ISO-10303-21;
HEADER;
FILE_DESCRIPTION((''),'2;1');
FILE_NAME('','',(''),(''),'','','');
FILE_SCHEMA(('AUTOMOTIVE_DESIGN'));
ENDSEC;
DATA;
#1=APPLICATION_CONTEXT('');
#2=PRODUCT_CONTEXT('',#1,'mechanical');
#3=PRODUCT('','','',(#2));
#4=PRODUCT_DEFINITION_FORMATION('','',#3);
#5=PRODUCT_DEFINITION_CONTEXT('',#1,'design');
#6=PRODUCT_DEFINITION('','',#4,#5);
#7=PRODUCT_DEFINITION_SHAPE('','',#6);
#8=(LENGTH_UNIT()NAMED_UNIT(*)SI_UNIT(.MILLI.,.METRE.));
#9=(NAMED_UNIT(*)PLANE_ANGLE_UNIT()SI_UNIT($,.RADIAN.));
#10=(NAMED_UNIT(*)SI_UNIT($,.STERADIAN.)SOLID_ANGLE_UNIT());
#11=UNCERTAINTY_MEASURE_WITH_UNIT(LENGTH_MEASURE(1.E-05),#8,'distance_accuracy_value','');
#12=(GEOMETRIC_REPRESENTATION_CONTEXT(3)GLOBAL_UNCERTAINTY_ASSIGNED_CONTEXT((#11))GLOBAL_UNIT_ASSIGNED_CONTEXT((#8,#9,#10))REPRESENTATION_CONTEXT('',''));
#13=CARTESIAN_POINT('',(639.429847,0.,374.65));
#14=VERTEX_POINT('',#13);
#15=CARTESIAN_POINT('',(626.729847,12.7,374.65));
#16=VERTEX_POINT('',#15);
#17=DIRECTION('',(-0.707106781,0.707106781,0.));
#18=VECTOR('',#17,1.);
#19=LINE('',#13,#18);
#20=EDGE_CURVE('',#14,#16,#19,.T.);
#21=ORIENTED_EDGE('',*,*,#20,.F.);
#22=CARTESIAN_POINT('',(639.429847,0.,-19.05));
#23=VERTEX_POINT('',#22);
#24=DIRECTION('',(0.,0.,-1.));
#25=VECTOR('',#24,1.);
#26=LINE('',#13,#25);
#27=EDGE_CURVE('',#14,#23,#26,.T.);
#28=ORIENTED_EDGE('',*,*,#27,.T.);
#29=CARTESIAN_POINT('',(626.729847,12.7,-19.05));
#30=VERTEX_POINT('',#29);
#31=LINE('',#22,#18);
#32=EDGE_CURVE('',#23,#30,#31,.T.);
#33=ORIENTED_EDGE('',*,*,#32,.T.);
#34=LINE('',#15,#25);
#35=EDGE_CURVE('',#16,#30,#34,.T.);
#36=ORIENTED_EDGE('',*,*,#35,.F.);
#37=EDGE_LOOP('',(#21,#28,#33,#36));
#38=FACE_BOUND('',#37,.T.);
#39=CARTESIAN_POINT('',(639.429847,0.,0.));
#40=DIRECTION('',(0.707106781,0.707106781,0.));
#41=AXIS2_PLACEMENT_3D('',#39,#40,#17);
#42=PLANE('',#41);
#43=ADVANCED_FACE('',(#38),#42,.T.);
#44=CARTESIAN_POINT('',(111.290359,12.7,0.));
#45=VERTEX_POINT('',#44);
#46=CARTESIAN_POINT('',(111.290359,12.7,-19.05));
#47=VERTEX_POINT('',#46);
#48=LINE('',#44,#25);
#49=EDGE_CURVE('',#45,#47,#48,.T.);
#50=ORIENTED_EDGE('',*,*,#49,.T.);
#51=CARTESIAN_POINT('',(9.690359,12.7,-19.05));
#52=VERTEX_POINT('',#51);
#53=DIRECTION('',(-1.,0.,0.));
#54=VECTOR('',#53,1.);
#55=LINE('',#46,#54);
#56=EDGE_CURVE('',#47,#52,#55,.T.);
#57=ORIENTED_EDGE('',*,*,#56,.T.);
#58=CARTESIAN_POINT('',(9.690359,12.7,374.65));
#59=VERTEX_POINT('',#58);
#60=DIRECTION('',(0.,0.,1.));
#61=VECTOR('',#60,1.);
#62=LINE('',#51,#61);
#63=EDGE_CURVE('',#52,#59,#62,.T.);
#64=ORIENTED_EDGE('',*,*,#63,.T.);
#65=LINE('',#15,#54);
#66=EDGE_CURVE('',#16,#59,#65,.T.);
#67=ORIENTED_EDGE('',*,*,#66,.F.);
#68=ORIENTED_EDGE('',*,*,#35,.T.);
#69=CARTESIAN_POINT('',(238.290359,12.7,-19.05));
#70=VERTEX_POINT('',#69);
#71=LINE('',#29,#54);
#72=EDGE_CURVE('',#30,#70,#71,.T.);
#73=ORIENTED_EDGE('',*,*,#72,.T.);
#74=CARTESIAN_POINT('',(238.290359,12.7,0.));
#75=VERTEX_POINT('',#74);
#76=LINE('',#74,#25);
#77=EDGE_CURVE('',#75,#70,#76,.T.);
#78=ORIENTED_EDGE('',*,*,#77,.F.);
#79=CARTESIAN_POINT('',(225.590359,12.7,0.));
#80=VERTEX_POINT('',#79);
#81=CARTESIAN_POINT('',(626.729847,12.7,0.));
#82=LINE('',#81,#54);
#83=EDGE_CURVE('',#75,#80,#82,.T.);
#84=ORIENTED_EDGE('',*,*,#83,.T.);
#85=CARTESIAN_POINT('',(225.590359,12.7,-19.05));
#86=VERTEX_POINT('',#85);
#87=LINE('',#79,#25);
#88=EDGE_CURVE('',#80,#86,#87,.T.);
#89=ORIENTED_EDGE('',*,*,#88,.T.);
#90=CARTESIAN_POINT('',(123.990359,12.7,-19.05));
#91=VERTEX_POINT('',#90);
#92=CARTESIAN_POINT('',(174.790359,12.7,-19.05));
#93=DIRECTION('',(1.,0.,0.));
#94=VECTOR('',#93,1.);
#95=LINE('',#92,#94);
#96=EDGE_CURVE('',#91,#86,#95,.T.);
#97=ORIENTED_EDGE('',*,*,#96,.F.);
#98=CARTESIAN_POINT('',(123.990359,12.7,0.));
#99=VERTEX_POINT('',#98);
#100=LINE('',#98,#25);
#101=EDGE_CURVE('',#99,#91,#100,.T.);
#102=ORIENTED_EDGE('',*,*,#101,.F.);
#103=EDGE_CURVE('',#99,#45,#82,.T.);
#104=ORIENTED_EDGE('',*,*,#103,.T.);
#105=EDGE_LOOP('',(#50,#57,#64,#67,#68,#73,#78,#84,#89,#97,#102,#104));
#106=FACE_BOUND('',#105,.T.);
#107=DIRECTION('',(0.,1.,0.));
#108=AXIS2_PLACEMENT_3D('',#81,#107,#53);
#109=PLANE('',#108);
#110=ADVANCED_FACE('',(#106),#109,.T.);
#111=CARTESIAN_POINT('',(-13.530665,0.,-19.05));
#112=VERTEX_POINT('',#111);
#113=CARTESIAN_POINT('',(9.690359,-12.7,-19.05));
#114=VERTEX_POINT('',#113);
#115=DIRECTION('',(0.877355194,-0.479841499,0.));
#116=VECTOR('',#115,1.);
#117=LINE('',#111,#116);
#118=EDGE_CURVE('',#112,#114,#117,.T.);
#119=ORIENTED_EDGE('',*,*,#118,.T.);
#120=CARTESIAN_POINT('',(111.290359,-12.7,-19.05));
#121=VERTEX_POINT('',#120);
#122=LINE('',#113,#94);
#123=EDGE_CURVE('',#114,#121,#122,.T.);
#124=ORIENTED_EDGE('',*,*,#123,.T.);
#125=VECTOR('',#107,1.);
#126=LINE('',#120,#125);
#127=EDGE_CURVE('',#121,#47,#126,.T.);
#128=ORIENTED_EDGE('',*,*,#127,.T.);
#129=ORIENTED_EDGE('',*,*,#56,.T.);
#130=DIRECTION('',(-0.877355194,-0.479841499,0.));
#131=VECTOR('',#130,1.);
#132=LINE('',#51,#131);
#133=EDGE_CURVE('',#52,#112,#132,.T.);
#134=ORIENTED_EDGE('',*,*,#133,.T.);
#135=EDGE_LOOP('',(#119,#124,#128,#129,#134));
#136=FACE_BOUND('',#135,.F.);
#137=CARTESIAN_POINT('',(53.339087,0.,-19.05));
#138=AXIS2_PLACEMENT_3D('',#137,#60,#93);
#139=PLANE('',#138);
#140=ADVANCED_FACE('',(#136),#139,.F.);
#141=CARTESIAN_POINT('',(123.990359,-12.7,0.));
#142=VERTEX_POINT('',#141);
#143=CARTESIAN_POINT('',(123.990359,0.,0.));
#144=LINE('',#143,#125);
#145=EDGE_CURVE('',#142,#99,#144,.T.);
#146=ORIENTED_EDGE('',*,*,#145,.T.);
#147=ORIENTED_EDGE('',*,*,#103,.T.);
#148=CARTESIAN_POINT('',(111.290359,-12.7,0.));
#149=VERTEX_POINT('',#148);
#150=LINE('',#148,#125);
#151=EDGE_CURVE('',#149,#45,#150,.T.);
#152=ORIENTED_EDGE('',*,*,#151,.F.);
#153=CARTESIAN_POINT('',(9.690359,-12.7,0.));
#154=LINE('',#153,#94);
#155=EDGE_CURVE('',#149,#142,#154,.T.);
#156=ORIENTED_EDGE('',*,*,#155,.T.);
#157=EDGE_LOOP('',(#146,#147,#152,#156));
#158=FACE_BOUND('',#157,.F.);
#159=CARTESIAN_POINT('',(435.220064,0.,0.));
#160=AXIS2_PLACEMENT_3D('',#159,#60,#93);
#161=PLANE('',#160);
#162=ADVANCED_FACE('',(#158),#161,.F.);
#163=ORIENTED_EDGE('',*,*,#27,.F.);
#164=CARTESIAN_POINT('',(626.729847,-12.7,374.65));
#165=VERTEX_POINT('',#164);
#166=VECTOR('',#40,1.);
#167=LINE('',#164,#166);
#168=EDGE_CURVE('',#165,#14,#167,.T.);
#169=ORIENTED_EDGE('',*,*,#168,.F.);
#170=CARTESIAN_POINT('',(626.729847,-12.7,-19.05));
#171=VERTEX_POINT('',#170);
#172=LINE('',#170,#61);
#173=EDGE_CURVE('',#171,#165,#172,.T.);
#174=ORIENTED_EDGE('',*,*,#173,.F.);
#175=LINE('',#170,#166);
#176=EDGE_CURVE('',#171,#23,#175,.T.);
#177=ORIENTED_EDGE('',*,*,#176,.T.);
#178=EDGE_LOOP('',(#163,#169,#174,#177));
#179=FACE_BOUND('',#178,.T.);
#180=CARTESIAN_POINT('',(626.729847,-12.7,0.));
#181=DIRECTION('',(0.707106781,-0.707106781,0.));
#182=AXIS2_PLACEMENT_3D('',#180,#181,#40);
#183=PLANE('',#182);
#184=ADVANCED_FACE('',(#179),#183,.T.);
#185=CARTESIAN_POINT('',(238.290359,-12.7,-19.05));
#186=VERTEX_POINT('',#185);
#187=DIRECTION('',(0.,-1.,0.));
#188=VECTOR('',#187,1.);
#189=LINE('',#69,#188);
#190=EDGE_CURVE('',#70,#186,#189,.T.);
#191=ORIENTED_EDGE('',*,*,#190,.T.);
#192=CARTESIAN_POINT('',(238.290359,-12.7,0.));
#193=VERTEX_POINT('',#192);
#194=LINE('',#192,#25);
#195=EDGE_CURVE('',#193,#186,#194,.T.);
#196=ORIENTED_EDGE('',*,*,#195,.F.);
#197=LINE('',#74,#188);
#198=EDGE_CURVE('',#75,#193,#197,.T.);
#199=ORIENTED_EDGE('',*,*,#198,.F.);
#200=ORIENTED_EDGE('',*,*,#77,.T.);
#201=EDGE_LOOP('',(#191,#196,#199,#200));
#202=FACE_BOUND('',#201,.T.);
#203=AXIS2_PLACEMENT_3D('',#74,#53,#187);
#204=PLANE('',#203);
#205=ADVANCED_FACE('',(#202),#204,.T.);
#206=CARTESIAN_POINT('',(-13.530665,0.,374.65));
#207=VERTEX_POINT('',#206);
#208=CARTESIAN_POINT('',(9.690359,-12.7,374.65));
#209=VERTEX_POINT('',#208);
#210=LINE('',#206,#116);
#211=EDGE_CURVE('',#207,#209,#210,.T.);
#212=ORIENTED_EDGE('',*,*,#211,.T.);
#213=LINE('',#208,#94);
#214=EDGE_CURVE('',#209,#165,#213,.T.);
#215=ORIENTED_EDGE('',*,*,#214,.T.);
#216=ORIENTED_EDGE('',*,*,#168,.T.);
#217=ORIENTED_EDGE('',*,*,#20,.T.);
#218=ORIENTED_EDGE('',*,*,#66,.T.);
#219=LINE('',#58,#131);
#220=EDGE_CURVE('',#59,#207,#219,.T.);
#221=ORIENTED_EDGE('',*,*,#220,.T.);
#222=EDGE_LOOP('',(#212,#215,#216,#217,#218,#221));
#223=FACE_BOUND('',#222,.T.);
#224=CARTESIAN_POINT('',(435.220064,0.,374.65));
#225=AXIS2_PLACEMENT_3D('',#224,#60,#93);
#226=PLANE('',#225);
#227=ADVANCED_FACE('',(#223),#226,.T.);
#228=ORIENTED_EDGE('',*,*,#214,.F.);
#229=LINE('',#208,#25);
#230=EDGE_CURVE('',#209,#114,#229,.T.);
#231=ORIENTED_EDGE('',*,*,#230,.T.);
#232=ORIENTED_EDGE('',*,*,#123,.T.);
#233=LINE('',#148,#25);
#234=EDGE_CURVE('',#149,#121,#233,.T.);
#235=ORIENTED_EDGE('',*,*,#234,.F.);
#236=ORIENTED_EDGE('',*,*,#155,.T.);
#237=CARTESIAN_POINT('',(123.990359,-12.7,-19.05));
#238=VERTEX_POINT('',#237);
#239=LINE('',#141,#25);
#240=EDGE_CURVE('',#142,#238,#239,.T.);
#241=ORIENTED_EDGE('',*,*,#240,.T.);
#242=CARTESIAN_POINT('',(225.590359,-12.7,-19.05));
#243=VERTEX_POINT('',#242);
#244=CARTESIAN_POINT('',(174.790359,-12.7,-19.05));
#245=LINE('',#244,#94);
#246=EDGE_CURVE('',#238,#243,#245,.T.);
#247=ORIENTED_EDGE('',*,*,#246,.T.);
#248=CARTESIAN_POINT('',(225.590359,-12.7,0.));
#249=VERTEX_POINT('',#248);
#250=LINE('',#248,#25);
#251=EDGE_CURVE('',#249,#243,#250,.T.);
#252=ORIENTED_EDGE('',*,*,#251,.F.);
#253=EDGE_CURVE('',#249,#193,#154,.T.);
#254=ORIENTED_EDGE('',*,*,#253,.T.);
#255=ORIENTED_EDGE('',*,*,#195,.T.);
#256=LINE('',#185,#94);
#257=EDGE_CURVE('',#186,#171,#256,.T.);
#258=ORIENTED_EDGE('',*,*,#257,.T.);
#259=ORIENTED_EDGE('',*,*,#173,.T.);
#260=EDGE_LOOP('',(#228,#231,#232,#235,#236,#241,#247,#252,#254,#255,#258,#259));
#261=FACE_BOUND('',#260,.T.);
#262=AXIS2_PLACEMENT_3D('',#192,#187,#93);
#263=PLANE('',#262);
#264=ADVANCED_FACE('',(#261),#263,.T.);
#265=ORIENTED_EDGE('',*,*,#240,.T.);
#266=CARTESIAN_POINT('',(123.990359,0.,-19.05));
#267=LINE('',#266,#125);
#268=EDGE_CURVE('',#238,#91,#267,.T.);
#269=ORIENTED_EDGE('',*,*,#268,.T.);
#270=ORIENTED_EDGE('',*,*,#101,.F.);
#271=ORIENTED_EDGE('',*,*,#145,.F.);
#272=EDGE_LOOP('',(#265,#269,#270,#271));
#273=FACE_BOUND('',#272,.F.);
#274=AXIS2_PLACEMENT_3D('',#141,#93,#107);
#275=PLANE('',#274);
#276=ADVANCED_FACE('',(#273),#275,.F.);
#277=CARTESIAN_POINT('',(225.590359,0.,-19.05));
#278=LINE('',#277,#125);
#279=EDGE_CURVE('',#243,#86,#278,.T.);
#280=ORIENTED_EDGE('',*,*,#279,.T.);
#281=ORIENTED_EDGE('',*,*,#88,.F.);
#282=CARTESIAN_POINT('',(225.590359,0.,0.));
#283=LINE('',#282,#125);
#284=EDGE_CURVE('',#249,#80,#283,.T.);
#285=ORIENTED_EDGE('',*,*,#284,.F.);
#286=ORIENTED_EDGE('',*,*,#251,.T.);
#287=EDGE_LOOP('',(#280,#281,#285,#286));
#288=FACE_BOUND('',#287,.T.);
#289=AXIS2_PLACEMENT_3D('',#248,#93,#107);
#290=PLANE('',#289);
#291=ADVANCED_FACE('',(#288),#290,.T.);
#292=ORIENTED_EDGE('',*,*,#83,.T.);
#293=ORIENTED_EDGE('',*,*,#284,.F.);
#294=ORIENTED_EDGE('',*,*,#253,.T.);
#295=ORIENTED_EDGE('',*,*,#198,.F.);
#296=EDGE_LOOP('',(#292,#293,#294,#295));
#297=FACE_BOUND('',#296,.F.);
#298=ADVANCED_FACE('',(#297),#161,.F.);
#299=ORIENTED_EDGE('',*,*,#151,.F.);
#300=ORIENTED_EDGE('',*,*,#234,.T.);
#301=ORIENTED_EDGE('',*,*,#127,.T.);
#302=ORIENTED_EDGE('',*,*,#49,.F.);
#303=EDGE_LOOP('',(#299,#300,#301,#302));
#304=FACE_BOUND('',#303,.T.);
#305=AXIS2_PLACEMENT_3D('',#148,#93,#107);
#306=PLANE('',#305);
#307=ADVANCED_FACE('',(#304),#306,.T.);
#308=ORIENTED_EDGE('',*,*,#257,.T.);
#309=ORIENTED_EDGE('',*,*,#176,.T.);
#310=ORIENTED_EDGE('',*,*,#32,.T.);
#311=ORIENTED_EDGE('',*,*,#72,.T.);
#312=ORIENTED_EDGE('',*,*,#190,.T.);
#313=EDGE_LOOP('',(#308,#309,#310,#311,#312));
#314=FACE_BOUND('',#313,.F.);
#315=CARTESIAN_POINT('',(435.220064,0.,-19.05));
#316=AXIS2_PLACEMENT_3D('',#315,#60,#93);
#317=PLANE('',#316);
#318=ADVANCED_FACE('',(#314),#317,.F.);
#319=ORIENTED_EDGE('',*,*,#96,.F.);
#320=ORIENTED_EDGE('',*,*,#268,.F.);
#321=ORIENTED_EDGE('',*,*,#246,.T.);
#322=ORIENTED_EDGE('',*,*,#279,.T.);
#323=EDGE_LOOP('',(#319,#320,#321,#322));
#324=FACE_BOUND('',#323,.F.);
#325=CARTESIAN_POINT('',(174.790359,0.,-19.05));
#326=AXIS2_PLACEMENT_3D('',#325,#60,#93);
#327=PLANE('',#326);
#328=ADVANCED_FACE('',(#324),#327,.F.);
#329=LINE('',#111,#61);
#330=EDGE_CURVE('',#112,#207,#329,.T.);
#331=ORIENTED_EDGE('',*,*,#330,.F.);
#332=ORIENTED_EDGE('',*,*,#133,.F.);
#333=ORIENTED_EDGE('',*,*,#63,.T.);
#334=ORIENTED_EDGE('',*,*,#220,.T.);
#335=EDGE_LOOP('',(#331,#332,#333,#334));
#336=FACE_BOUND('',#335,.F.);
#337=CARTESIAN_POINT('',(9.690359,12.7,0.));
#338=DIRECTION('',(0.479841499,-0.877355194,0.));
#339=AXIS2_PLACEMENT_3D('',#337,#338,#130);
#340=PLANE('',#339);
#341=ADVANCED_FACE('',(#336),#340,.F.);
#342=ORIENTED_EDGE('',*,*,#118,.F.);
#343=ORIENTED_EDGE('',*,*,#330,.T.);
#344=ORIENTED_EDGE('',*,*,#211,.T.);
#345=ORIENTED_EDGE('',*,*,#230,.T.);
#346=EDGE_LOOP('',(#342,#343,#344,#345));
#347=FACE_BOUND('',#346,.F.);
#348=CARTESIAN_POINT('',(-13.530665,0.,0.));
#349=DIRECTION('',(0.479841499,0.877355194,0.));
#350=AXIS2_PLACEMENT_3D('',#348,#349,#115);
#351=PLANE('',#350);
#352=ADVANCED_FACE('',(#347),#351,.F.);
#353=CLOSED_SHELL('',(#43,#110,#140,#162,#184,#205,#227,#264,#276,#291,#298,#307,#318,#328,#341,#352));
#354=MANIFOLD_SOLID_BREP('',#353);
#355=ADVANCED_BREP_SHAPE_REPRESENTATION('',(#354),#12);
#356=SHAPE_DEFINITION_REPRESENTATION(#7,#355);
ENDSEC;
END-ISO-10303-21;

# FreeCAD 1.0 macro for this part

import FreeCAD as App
import Part
import Sketcher
Q = App.Units.Quantity


def add_polygon(sketch, points):
    """Adds a closed chain of lines whose ends are joined by coincident constraints."""
    first, n = sketch.GeometryCount, len(points)
    for a, b in zip(points, points[1:] + points[:1]):
        sketch.addGeometry(Part.LineSegment(App.Vector(*a, 0), App.Vector(*b, 0)), False)
    for i in range(n):
        sketch.addConstraint(Sketcher.Constraint("Coincident", first + i, 2, first + (i + 1) % n, 1))

doc = App.newDocument("Part")
body = doc.addObject("PartDesign::Body", "Body")

# Sketch on XY plane
sketch1 = body.newObject("Sketcher::SketchObject", "Sketch")
sketch1.AttachmentSupport = (doc.getObject("XY_Plane"), [""])
sketch1.MapMode = "FlatFace"
add_polygon(sketch1, [(626.729847, -12.7), (639.429847, 0), (626.729847, 12.7), (9.690359, 12.7), (-13.530665, 0), (9.690359, -12.7)])  # lines 0-5
sketch1.addConstraint(Sketcher.Constraint("Horizontal", 2))
sketch1.addConstraint(Sketcher.Constraint("Horizontal", 5))
sketch1.addConstraint(Sketcher.Constraint("Symmetric", 2, 2, 4, 2, -1))
sketch1.addConstraint(Sketcher.Constraint("PointOnObject", 0, 2, -1))
sketch1.addConstraint(Sketcher.Constraint("PointOnObject", 3, 2, -1))
sketch1.addConstraint(Sketcher.Constraint("Perpendicular", 0, 1))
sketch1.addConstraint(Sketcher.Constraint("Vertical", 1, 2, 5, 2))
sketch1.addConstraint(Sketcher.Constraint("DistanceY", 4, 2, 2, 2, Q("1 in")))
sketch1.addConstraint(Sketcher.Constraint("DistanceX", 2, 2, 2, 1, Q("617.039488 mm")))
sketch1.addConstraint(Sketcher.Constraint("DistanceX", -1, 1, 2, 2, Q("9.690359 mm")))
sketch1.addConstraint(Sketcher.Constraint("DistanceX", 3, 2, 1, 2, Q("640.260512 mm")))
pad1 = body.newObject("PartDesign::Pad", "Pad")
pad1.Profile = sketch1
pad1.Length = Q("14.75 in")

# Sketch on XY plane
sketch2 = body.newObject("Sketcher::SketchObject", "Sketch001")
sketch2.AttachmentSupport = (doc.getObject("XY_Plane"), [""])
sketch2.MapMode = "FlatFace"
add_polygon(sketch2, [(238.290359, 12.7), (238.290359, -12.7), (626.729847, -12.7), (639.429847, 0), (626.729847, 12.7)])  # lines 0-4
add_polygon(sketch2, [(123.990359, 12.7), (123.990359, -12.7), (225.590359, -12.7), (225.590359, 12.7)])  # lines 5-8
add_polygon(sketch2, [(-13.530665, 0), (9.690359, -12.7), (111.290359, -12.7), (111.290359, 12.7), (9.690359, 12.7)])  # lines 9-13
sketch2.addConstraint(Sketcher.Constraint("Vertical", 0))
sketch2.addConstraint(Sketcher.Constraint("Horizontal", 1))
sketch2.addConstraint(Sketcher.Constraint("Horizontal", 4))
sketch2.addConstraint(Sketcher.Constraint("Vertical", 5))
sketch2.addConstraint(Sketcher.Constraint("Horizontal", 6))
sketch2.addConstraint(Sketcher.Constraint("Vertical", 7))
sketch2.addConstraint(Sketcher.Constraint("Horizontal", 8))
sketch2.addConstraint(Sketcher.Constraint("Horizontal", 10))
sketch2.addConstraint(Sketcher.Constraint("Vertical", 11))
sketch2.addConstraint(Sketcher.Constraint("Horizontal", 12))
sketch2.addConstraint(Sketcher.Constraint("Symmetric", 1, 2, 3, 2, -1))
sketch2.addConstraint(Sketcher.Constraint("Symmetric", 9, 2, 12, 2, -1))
sketch2.addConstraint(Sketcher.Constraint("PointOnObject", 2, 2, -1))
sketch2.addConstraint(Sketcher.Constraint("PointOnObject", 13, 2, -1))
sketch2.addConstraint(Sketcher.Constraint("Perpendicular", 2, 3))
sketch2.addConstraint(Sketcher.Constraint("Horizontal", 1, 2, 5, 2))
sketch2.addConstraint(Sketcher.Constraint("Horizontal", 4, 2, 7, 2))
sketch2.addConstraint(Sketcher.Constraint("Horizontal", 6, 2, 9, 2))
sketch2.addConstraint(Sketcher.Constraint("Equal", 8, 10))
sketch2.addConstraint(Sketcher.Constraint("DistanceX", 6, 1, 6, 2, Q("4 in")))
sketch2.addConstraint(Sketcher.Constraint("DistanceY", 0, 2, 0, 1, Q("1 in")))
sketch2.addConstraint(Sketcher.Constraint("DistanceX", 9, 2, 0, 2, Q("9 in")))
sketch2.addConstraint(Sketcher.Constraint("DistanceX", 5, 2, 0, 2, Q("4.5 in")))
sketch2.addConstraint(Sketcher.Constraint("DistanceX", 1, 1, 1, 2, Q("388.439488 mm")))
sketch2.addConstraint(Sketcher.Constraint("DistanceX", -1, 1, 0, 2, Q("238.290359 mm")))
sketch2.addConstraint(Sketcher.Constraint("Distance", 9, Q("26.467073 mm")))
pad2 = body.newObject("PartDesign::Pad", "Pad001")
pad2.Profile = sketch2
pad2.Length = Q("0.75 in")
pad2.Reversed = True

doc.recompute()
